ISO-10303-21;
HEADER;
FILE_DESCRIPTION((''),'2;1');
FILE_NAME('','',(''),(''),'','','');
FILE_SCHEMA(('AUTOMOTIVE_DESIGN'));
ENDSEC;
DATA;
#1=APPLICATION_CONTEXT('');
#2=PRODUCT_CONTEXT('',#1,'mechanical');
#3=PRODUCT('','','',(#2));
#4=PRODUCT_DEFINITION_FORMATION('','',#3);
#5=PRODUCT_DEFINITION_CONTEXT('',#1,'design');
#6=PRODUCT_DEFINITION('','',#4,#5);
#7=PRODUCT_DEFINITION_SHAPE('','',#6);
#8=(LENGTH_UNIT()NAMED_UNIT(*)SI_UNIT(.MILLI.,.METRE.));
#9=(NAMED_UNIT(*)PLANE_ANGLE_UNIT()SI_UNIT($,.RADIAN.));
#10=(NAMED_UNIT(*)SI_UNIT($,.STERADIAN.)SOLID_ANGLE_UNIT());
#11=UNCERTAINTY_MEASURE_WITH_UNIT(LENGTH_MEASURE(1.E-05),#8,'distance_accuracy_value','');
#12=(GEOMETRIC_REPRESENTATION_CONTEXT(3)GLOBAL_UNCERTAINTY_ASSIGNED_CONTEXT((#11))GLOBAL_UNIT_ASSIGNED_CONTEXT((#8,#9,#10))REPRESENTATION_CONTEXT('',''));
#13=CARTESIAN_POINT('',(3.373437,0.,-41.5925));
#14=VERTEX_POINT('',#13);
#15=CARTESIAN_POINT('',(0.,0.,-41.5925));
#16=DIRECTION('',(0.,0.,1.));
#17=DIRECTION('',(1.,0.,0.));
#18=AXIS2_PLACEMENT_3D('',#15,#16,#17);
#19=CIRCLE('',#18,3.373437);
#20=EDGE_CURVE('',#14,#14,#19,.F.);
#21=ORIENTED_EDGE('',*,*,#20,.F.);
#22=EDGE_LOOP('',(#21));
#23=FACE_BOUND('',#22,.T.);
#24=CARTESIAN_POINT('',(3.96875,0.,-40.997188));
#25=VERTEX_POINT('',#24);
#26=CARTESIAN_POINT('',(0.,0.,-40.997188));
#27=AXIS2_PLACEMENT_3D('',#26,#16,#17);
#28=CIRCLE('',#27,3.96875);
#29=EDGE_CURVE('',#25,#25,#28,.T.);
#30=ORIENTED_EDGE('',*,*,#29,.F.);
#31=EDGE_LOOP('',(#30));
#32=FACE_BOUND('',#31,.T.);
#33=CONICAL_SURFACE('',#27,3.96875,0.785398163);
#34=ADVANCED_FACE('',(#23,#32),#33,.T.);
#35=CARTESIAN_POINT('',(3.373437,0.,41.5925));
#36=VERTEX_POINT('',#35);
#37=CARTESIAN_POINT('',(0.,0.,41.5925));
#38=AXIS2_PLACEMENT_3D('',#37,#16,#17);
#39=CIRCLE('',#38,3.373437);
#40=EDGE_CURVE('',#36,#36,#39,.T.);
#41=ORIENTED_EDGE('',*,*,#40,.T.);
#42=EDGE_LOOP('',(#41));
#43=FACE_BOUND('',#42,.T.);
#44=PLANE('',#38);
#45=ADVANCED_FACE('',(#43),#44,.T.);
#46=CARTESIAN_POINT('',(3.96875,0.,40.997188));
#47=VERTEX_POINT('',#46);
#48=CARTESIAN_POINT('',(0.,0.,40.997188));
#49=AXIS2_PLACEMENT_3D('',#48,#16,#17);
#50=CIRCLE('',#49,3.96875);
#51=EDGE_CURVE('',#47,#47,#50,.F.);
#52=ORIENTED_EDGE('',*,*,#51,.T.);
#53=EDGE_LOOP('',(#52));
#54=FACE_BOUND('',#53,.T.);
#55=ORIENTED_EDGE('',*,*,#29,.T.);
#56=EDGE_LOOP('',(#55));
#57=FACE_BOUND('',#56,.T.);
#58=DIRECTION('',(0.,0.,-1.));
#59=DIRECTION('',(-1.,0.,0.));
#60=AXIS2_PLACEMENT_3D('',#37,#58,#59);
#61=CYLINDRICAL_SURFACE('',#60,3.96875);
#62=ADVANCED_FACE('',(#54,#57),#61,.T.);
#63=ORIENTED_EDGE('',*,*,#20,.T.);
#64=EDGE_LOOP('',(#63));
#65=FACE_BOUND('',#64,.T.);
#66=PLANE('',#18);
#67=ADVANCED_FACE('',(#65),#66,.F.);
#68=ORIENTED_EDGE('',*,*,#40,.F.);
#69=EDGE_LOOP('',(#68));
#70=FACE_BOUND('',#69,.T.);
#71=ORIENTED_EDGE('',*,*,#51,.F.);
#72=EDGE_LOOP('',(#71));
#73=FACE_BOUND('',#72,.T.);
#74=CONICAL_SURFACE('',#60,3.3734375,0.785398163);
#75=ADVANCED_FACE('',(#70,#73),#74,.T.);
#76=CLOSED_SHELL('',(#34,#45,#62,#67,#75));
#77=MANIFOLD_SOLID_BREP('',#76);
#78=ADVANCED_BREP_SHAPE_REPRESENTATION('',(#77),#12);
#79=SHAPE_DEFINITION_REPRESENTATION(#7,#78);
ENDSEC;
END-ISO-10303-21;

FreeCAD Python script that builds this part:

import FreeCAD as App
import Part
import Sketcher
Q = App.Units.Quantity


def edges_at(feature, points):
    """Names of the edges that pass closest to the given points."""
    edges = feature.Shape.Edges
    near = lambda p: min(range(len(edges)), key=lambda i: edges[i].distToShape(Part.Vertex(*p))[0])
    return sorted({f"Edge{near(p) + 1}" for p in points})

doc = App.newDocument("Part")
params = doc.addObject("Spreadsheet::Sheet", "Params")
for row, (alias, value) in enumerate([
    ("sketch1_diameter", "0.3125 in"),
    ("pad1_length", "1.6375 in"),
    ("pad1_length2", "1.6375 in"),
    ("chamfer_size", "0.595313 mm"),
], start=1):
    params.set(f"A{row}", alias)
    params.set(f"B{row}", "=" + value)
    params.setAlias(f"B{row}", alias)

body = doc.addObject("PartDesign::Body", "Body")

sketch1 = doc.addObject("Sketcher::SketchObject", "Sketch")
body.addObject(sketch1)
sketch1.AttachmentSupport = (doc.XY_Plane, [""])
sketch1.MapMode = "FlatFace"
sketch1.addGeometry(Part.Circle(App.Vector(0, 0, 0), App.Vector(0, 0, 1), 3.96875), False)
sketch1.addConstraint([
    Sketcher.Constraint("Coincident", 0, 3, -1, 1),
    Sketcher.Constraint("Diameter", 0, Q("0.3125 in")),
])
sketch1.setExpression("Constraints[1]", "Params.sketch1_diameter")
pad1 = doc.addObject("PartDesign::Pad", "Pad")
body.addObject(pad1)
pad1.Profile = sketch1
pad1.Type = "TwoLengths"
pad1.setExpression("Length", "Params.pad1_length")
pad1.setExpression("Length2", "Params.pad1_length2")
doc.recompute()

chamfer = doc.addObject("PartDesign::Chamfer", "Chamfer")
body.addObject(chamfer)
chamfer.Base = (pad1, edges_at(pad1, [(-3.969, 0, -41.593), (-3.969, 0, 41.593)]))
chamfer.setExpression("Size", "Params.chamfer_size")

doc.recompute()
